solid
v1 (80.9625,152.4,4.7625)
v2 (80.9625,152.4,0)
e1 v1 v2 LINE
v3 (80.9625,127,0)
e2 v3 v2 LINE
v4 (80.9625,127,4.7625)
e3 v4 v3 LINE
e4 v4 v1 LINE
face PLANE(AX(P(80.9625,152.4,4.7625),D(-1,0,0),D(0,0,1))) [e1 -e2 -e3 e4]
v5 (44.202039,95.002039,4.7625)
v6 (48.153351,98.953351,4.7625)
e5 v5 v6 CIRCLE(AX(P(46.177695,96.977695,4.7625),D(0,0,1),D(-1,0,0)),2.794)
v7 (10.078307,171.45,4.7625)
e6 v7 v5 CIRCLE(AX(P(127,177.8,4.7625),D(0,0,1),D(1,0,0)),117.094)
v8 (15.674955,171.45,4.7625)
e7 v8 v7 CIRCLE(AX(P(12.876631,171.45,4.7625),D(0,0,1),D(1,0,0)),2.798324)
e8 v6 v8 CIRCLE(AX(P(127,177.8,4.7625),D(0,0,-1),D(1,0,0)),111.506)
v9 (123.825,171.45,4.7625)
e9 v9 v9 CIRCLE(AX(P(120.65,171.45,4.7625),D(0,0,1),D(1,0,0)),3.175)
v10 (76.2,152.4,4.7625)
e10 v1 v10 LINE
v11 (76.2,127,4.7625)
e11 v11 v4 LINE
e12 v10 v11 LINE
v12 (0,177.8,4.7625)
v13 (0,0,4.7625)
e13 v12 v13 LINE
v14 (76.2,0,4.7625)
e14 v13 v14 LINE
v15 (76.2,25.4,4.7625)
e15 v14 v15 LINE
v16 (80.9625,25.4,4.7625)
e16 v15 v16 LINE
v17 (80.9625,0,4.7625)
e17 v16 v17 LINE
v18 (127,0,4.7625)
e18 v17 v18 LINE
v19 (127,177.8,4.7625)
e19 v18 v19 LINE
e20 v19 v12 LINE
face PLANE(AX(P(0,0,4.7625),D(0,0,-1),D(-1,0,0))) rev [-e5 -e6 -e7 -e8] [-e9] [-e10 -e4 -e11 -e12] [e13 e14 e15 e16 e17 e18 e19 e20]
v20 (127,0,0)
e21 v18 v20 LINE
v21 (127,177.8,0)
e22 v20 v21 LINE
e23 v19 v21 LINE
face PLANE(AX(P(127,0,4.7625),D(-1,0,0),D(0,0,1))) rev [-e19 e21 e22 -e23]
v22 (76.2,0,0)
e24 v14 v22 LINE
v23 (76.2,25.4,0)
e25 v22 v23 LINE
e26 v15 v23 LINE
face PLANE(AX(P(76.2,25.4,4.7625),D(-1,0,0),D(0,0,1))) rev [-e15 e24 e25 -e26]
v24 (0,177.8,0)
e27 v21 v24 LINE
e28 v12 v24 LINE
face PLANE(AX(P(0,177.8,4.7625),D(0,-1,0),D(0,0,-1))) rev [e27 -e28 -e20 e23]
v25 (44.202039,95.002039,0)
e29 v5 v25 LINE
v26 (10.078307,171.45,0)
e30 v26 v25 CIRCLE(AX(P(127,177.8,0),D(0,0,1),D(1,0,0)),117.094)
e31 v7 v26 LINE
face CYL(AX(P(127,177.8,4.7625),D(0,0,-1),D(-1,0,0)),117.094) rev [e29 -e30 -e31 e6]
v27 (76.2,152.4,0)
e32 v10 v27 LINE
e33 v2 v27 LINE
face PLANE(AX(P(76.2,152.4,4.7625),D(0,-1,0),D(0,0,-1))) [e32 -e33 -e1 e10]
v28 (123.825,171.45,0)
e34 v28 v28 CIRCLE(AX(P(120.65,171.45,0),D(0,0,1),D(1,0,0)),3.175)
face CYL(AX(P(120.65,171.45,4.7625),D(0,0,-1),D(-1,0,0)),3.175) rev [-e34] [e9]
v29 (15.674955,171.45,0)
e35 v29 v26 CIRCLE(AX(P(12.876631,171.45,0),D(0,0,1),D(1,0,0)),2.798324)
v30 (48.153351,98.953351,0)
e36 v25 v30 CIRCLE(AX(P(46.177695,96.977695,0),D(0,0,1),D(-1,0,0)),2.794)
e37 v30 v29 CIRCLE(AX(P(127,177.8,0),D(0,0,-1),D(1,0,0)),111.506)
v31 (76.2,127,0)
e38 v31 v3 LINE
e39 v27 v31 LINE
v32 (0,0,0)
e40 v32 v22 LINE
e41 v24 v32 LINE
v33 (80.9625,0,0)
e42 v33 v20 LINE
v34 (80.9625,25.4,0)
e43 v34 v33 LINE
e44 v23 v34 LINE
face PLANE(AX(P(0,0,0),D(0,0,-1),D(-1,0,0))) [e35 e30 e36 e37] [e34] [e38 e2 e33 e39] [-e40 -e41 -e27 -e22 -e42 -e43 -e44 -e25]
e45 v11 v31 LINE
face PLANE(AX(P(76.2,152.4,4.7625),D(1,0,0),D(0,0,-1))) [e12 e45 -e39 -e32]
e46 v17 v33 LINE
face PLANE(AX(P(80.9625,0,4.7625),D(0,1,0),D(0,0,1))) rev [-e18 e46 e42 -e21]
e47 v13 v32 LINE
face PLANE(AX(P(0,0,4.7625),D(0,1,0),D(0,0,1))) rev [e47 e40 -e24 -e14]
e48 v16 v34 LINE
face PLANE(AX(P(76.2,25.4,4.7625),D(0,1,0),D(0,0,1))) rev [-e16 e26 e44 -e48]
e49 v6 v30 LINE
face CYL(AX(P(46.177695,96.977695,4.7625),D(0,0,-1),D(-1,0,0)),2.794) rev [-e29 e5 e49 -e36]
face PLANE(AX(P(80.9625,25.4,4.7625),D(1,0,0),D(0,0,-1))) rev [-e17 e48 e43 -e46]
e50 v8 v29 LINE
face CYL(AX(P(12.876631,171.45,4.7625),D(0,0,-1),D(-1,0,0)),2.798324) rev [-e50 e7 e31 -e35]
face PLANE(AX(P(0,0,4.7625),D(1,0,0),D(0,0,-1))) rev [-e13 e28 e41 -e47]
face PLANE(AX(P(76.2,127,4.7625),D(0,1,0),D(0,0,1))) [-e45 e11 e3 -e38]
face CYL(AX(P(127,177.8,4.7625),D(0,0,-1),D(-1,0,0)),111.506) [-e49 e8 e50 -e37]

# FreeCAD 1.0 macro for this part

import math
import FreeCAD as App
import Part
import Sketcher

V = App.Vector
Q = App.Units.Quantity

doc = App.newDocument("Part")
params = doc.addObject("Spreadsheet::Sheet", "Params")
for row, (alias, value) in enumerate([
    ("sketch1_diameter", "0.25 in"),
    ("sketch1_width", "5 in"),
    ("sketch1_width2", "3 in"),
    ("sketch1_height", "7 in"),
    ("sketch1_height2", "1 in"),
    ("pad1_length", "0.1875 in"),
], start=1):
    params.set(f"A{row}", alias)
    params.set(f"B{row}", "=" + value)
    params.setAlias(f"B{row}", alias)

body = doc.addObject("PartDesign::Body", "Body")

sketch1 = body.newObject("Sketcher::SketchObject", "Sketch")
sketch1.AttachmentSupport = (doc.getObject("XY_Plane"), [""])
sketch1.MapMode = "FlatFace"
sketch1.addGeometry(Part.LineSegment(V(81, 0, 0), V(127, 0, 0)), False)
sketch1.addGeometry(Part.LineSegment(V(127, 0, 0), V(127, 177.8, 0)), False)
sketch1.addGeometry(Part.LineSegment(V(127, 177.8, 0), V(0, 177.8, 0)), False)
sketch1.addGeometry(Part.LineSegment(V(0, 177.8, 0), V(0, 0, 0)), False)
sketch1.addGeometry(Part.LineSegment(V(0, 0, 0), V(76.2, 0, 0)), False)
sketch1.addGeometry(Part.LineSegment(V(76.2, 0, 0), V(76.2, 25.4, 0)), False)
sketch1.addGeometry(Part.LineSegment(V(76.2, 25.4, 0), V(81, 25.4, 0)), False)
sketch1.addGeometry(Part.LineSegment(V(81, 25.4, 0), V(81, 0, 0)), False)
sketch1.addGeometry(Part.ArcOfCircle(Part.Circle(V(127, 177.8, 0), V(0, 0, 1), 117.1), math.radians(-177), math.radians(-135)), False)
sketch1.addGeometry(Part.ArcOfCircle(Part.Circle(V(12.9, 171.4, 0), V(0, 0, 1), 2.8), math.radians(0), math.radians(180)), False)
sketch1.addGeometry(Part.ArcOfCircle(Part.Circle(V(127, 177.8, 0), V(0, 0, 1), 111.5), math.radians(-177), math.radians(-135)), False)
sketch1.addGeometry(Part.ArcOfCircle(Part.Circle(V(46.2, 97, 0), V(0, 0, 1), 2.8), math.radians(-135), math.radians(45)), False)
sketch1.addGeometry(Part.LineSegment(V(81, 127, 0), V(76.2, 127, 0)), False)
sketch1.addGeometry(Part.LineSegment(V(76.2, 127, 0), V(76.2, 152.4, 0)), False)
sketch1.addGeometry(Part.LineSegment(V(76.2, 152.4, 0), V(81, 152.4, 0)), False)
sketch1.addGeometry(Part.LineSegment(V(81, 152.4, 0), V(81, 127, 0)), False)
sketch1.addGeometry(Part.Circle(V(120.7, 171.4, 0), V(0, 0, 1), 3.2), False)
sketch1.addConstraint(Sketcher.Constraint("Coincident", 0, 2, 1, 1))
sketch1.addConstraint(Sketcher.Constraint("Coincident", 1, 2, 2, 1))
sketch1.addConstraint(Sketcher.Constraint("Coincident", 2, 2, 3, 1))
sketch1.addConstraint(Sketcher.Constraint("Coincident", 3, 2, 4, 1))
sketch1.addConstraint(Sketcher.Constraint("Coincident", 4, 2, 5, 1))
sketch1.addConstraint(Sketcher.Constraint("Coincident", 5, 2, 6, 1))
sketch1.addConstraint(Sketcher.Constraint("Coincident", 6, 2, 7, 1))
sketch1.addConstraint(Sketcher.Constraint("Coincident", 7, 2, 0, 1))
sketch1.addConstraint(Sketcher.Constraint("Coincident", 8, 1, 9, 2))
sketch1.addConstraint(Sketcher.Constraint("Coincident", 9, 1, 10, 1))
sketch1.addConstraint(Sketcher.Constraint("Tangent", 10, 2, 11, 2))
sketch1.addConstraint(Sketcher.Constraint("Tangent", 11, 1, 8, 2))
sketch1.addConstraint(Sketcher.Constraint("Coincident", 12, 2, 13, 1))
sketch1.addConstraint(Sketcher.Constraint("Coincident", 13, 2, 14, 1))
sketch1.addConstraint(Sketcher.Constraint("Coincident", 14, 2, 15, 1))
sketch1.addConstraint(Sketcher.Constraint("Coincident", 15, 2, 12, 1))
sketch1.addConstraint(Sketcher.Constraint("Horizontal", 0))
sketch1.addConstraint(Sketcher.Constraint("Vertical", 1))
sketch1.addConstraint(Sketcher.Constraint("Horizontal", 2))
sketch1.addConstraint(Sketcher.Constraint("Vertical", 3))
sketch1.addConstraint(Sketcher.Constraint("Horizontal", 4))
sketch1.addConstraint(Sketcher.Constraint("Vertical", 5))
sketch1.addConstraint(Sketcher.Constraint("Horizontal", 6))
sketch1.addConstraint(Sketcher.Constraint("Vertical", 7))
sketch1.addConstraint(Sketcher.Constraint("Horizontal", 12))
sketch1.addConstraint(Sketcher.Constraint("Vertical", 13))
sketch1.addConstraint(Sketcher.Constraint("Horizontal", 14))
sketch1.addConstraint(Sketcher.Constraint("Vertical", 15))
sketch1.addConstraint(Sketcher.Constraint("Coincident", 3, 2, -1, 1))
sketch1.addConstraint(Sketcher.Constraint("Coincident", 10, 3, 8, 3))
sketch1.addConstraint(Sketcher.Constraint("Coincident", 1, 2, 8, 3))
sketch1.addConstraint(Sketcher.Constraint("PointOnObject", 0, 2, -1))
sketch1.addConstraint(Sketcher.Constraint("Horizontal", 9, 3, 16, 3))
sketch1.addConstraint(Sketcher.Constraint("Horizontal", 16, 3, 8, 1))
sketch1.addConstraint(Sketcher.Constraint("Horizontal", 8, 1, 9, 1))
sketch1.addConstraint(Sketcher.Constraint("Vertical", 5, 2, 12, 2))
sketch1.addConstraint(Sketcher.Constraint("Vertical", 7, 2, 14, 2))
sketch1.addConstraint(Sketcher.Constraint("Equal", 7, 13))
sketch1.addConstraint(Sketcher.Constraint("Diameter", 16, Q("0.25 in")))
sketch1.addConstraint(Sketcher.Constraint("DistanceX", 2, 2, 2, 1, Q("5 in")))
sketch1.addConstraint(Sketcher.Constraint("DistanceX", 4, 1, 4, 2, Q("3 in")))
sketch1.addConstraint(Sketcher.Constraint("DistanceY", 1, 1, 1, 2, Q("7 in")))
sketch1.addConstraint(Sketcher.Constraint("DistanceY", 5, 1, 5, 2, Q("1 in")))
sketch1.addConstraint(Sketcher.Constraint("Radius", 8, Q("4.61 in")))
sketch1.addConstraint(Sketcher.Constraint("Radius", 10, Q("4.39 in")))
sketch1.addConstraint(Sketcher.Constraint("DistanceY", -1, 1, 12, 2, Q("5 in")))
sketch1.addConstraint(Sketcher.Constraint("DistanceX", 0, 1, 0, 2, Q("1.8125 in")))
sketch1.addConstraint(Sketcher.Constraint("DistanceY", -1, 1, 9, 3, Q("6.75 in")))
sketch1.addConstraint(Sketcher.Constraint("DistanceX", -1, 1, 16, 3, Q("4.75 in")))
sketch1.addConstraint(Sketcher.Constraint("DistanceX", -1, 1, 10, 2, 48.153351))
sketch1.setExpression("Constraints[38]", "Params.sketch1_diameter")
sketch1.setExpression("Constraints[39]", "Params.sketch1_width")
sketch1.setExpression("Constraints[40]", "Params.sketch1_width2")
sketch1.setExpression("Constraints[41]", "Params.sketch1_height")
sketch1.setExpression("Constraints[42]", "Params.sketch1_height2")
pad1 = body.newObject("PartDesign::Pad", "Pad")
pad1.Profile = sketch1
pad1.setExpression("Length", "Params.pad1_length")

doc.recompute()
